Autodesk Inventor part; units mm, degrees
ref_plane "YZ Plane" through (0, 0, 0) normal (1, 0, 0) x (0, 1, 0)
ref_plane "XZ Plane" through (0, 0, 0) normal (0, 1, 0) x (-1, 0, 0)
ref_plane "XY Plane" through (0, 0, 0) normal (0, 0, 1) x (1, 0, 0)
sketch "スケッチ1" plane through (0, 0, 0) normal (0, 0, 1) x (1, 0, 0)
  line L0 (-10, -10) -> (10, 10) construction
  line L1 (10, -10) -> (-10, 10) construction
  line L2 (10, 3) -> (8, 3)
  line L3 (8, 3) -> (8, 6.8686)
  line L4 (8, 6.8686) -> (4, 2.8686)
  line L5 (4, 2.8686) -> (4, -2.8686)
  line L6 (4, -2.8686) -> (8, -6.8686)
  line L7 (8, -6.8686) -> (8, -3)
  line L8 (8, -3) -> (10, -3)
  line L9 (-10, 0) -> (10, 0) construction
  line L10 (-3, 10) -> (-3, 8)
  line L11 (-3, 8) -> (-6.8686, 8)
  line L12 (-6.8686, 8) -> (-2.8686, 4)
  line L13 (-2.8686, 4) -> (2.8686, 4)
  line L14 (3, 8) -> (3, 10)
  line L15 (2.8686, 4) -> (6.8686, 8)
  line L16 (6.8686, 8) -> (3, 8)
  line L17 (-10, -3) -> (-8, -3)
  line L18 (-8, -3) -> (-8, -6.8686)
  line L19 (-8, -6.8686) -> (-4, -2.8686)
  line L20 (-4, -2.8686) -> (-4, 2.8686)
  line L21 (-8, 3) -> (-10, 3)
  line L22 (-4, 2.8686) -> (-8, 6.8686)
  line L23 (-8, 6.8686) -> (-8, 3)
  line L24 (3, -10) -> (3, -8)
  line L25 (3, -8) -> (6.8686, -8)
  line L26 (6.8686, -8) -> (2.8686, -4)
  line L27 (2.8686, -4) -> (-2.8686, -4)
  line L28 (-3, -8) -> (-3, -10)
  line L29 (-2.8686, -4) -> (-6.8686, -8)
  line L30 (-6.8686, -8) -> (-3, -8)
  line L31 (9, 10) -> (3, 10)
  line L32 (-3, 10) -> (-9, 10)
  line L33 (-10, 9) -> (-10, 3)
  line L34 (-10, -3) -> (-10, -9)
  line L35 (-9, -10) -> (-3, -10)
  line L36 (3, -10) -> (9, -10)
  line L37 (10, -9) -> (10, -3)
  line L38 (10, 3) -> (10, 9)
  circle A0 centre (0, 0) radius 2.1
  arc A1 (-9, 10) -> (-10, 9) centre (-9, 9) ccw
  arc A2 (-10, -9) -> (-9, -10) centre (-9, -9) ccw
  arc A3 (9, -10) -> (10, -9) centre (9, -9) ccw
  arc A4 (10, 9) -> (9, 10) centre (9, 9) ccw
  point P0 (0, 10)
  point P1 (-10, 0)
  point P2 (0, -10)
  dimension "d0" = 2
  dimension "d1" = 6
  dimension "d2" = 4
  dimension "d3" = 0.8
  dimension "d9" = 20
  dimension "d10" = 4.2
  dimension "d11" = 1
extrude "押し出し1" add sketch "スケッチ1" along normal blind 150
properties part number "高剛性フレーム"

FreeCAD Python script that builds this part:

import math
import FreeCAD as App
import Part
import Sketcher
from FreeCAD import Vector

doc = App.newDocument("Part")
body = doc.addObject("PartDesign::Body", "Body")

sketch1 = body.newObject("Sketcher::SketchObject", "Sketch")
sketch1.AttachmentSupport = (doc.getObject("XY_Plane"), [""])
sketch1.MapMode = "FlatFace"
sketch1.addGeometry(Part.LineSegment(Vector(8, 3, 0), Vector(10, 3, 0)), False)
sketch1.addGeometry(Part.LineSegment(Vector(10, 3, 0), Vector(10, 9, 0)), False)
sketch1.addGeometry(Part.ArcOfCircle(Part.Circle(Vector(9, 9, 0), Vector(0, 0, 1), 1), math.radians(0), math.radians(90)), False)
sketch1.addGeometry(Part.LineSegment(Vector(9, 10, 0), Vector(3, 10, 0)), False)
sketch1.addGeometry(Part.LineSegment(Vector(3, 10, 0), Vector(3, 8, 0)), False)
sketch1.addGeometry(Part.LineSegment(Vector(3, 8, 0), Vector(6.8686, 8, 0)), False)
sketch1.addGeometry(Part.LineSegment(Vector(6.8686, 8, 0), Vector(2.8686, 4, 0)), False)
sketch1.addGeometry(Part.LineSegment(Vector(2.8686, 4, 0), Vector(-2.8686, 4, 0)), False)
sketch1.addGeometry(Part.LineSegment(Vector(-2.8686, 4, 0), Vector(-6.8686, 8, 0)), False)
sketch1.addGeometry(Part.LineSegment(Vector(-6.8686, 8, 0), Vector(-3, 8, 0)), False)
sketch1.addGeometry(Part.LineSegment(Vector(-3, 8, 0), Vector(-3, 10, 0)), False)
sketch1.addGeometry(Part.LineSegment(Vector(-3, 10, 0), Vector(-9, 10, 0)), False)
sketch1.addGeometry(Part.ArcOfCircle(Part.Circle(Vector(-9, 9, 0), Vector(0, 0, 1), 1), math.radians(90), math.radians(180)), False)
sketch1.addGeometry(Part.LineSegment(Vector(-10, 9, 0), Vector(-10, 3, 0)), False)
sketch1.addGeometry(Part.LineSegment(Vector(-10, 3, 0), Vector(-8, 3, 0)), False)
sketch1.addGeometry(Part.LineSegment(Vector(-8, 3, 0), Vector(-8, 6.8686, 0)), False)
sketch1.addGeometry(Part.LineSegment(Vector(-8, 6.8686, 0), Vector(-4, 2.8686, 0)), False)
sketch1.addGeometry(Part.LineSegment(Vector(-4, 2.8686, 0), Vector(-4, -2.8686, 0)), False)
sketch1.addGeometry(Part.LineSegment(Vector(-4, -2.8686, 0), Vector(-8, -6.8686, 0)), False)
sketch1.addGeometry(Part.LineSegment(Vector(-8, -6.8686, 0), Vector(-8, -3, 0)), False)
sketch1.addGeometry(Part.LineSegment(Vector(-8, -3, 0), Vector(-10, -3, 0)), False)
sketch1.addGeometry(Part.LineSegment(Vector(-10, -3, 0), Vector(-10, -9, 0)), False)
sketch1.addGeometry(Part.ArcOfCircle(Part.Circle(Vector(-9, -9, 0), Vector(0, 0, 1), 1), math.radians(180), math.radians(270)), False)
sketch1.addGeometry(Part.LineSegment(Vector(-9, -10, 0), Vector(-3, -10, 0)), False)
sketch1.addGeometry(Part.LineSegment(Vector(-3, -10, 0), Vector(-3, -8, 0)), False)
sketch1.addGeometry(Part.LineSegment(Vector(-3, -8, 0), Vector(-6.8686, -8, 0)), False)
sketch1.addGeometry(Part.LineSegment(Vector(-6.8686, -8, 0), Vector(-2.8686, -4, 0)), False)
sketch1.addGeometry(Part.LineSegment(Vector(-2.8686, -4, 0), Vector(2.8686, -4, 0)), False)
sketch1.addGeometry(Part.LineSegment(Vector(2.8686, -4, 0), Vector(6.8686, -8, 0)), False)
sketch1.addGeometry(Part.LineSegment(Vector(6.8686, -8, 0), Vector(3, -8, 0)), False)
sketch1.addGeometry(Part.LineSegment(Vector(3, -8, 0), Vector(3, -10, 0)), False)
sketch1.addGeometry(Part.LineSegment(Vector(3, -10, 0), Vector(9, -10, 0)), False)
sketch1.addGeometry(Part.ArcOfCircle(Part.Circle(Vector(9, -9, 0), Vector(0, 0, 1), 1), math.radians(-90), math.radians(0)), False)
sketch1.addGeometry(Part.LineSegment(Vector(10, -9, 0), Vector(10, -3, 0)), False)
sketch1.addGeometry(Part.LineSegment(Vector(10, -3, 0), Vector(8, -3, 0)), False)
sketch1.addGeometry(Part.LineSegment(Vector(8, -3, 0), Vector(8, -6.8686, 0)), False)
sketch1.addGeometry(Part.LineSegment(Vector(8, -6.8686, 0), Vector(4, -2.8686, 0)), False)
sketch1.addGeometry(Part.LineSegment(Vector(4, -2.8686, 0), Vector(4, 2.8686, 0)), False)
sketch1.addGeometry(Part.LineSegment(Vector(4, 2.8686, 0), Vector(8, 6.8686, 0)), False)
sketch1.addGeometry(Part.LineSegment(Vector(8, 6.8686, 0), Vector(8, 3, 0)), False)
sketch1.addGeometry(Part.Circle(Vector(0, 0, 0), Vector(0, 0, 1), 2.1), False)
sketch1.addConstraint(Sketcher.Constraint("Coincident", 0, 2, 1, 1))
sketch1.addConstraint(Sketcher.Constraint("Tangent", 1, 2, 2, 1))
sketch1.addConstraint(Sketcher.Constraint("Tangent", 2, 2, 3, 1))
sketch1.addConstraint(Sketcher.Constraint("Coincident", 3, 2, 4, 1))
sketch1.addConstraint(Sketcher.Constraint("Coincident", 4, 2, 5, 1))
sketch1.addConstraint(Sketcher.Constraint("Coincident", 5, 2, 6, 1))
sketch1.addConstraint(Sketcher.Constraint("Coincident", 6, 2, 7, 1))
sketch1.addConstraint(Sketcher.Constraint("Coincident", 7, 2, 8, 1))
sketch1.addConstraint(Sketcher.Constraint("Coincident", 8, 2, 9, 1))
sketch1.addConstraint(Sketcher.Constraint("Coincident", 9, 2, 10, 1))
sketch1.addConstraint(Sketcher.Constraint("Coincident", 10, 2, 11, 1))
sketch1.addConstraint(Sketcher.Constraint("Tangent", 11, 2, 12, 1))
sketch1.addConstraint(Sketcher.Constraint("Tangent", 12, 2, 13, 1))
sketch1.addConstraint(Sketcher.Constraint("Coincident", 13, 2, 14, 1))
sketch1.addConstraint(Sketcher.Constraint("Coincident", 14, 2, 15, 1))
sketch1.addConstraint(Sketcher.Constraint("Coincident", 15, 2, 16, 1))
sketch1.addConstraint(Sketcher.Constraint("Coincident", 16, 2, 17, 1))
sketch1.addConstraint(Sketcher.Constraint("Coincident", 17, 2, 18, 1))
sketch1.addConstraint(Sketcher.Constraint("Coincident", 18, 2, 19, 1))
sketch1.addConstraint(Sketcher.Constraint("Coincident", 19, 2, 20, 1))
sketch1.addConstraint(Sketcher.Constraint("Coincident", 20, 2, 21, 1))
sketch1.addConstraint(Sketcher.Constraint("Tangent", 21, 2, 22, 1))
sketch1.addConstraint(Sketcher.Constraint("Tangent", 22, 2, 23, 1))
sketch1.addConstraint(Sketcher.Constraint("Coincident", 23, 2, 24, 1))
sketch1.addConstraint(Sketcher.Constraint("Coincident", 24, 2, 25, 1))
sketch1.addConstraint(Sketcher.Constraint("Coincident", 25, 2, 26, 1))
sketch1.addConstraint(Sketcher.Constraint("Coincident", 26, 2, 27, 1))
sketch1.addConstraint(Sketcher.Constraint("Coincident", 27, 2, 28, 1))
sketch1.addConstraint(Sketcher.Constraint("Coincident", 28, 2, 29, 1))
sketch1.addConstraint(Sketcher.Constraint("Coincident", 29, 2, 30, 1))
sketch1.addConstraint(Sketcher.Constraint("Coincident", 30, 2, 31, 1))
sketch1.addConstraint(Sketcher.Constraint("Tangent", 31, 2, 32, 1))
sketch1.addConstraint(Sketcher.Constraint("Tangent", 32, 2, 33, 1))
sketch1.addConstraint(Sketcher.Constraint("Coincident", 33, 2, 34, 1))
sketch1.addConstraint(Sketcher.Constraint("Coincident", 34, 2, 35, 1))
sketch1.addConstraint(Sketcher.Constraint("Coincident", 35, 2, 36, 1))
sketch1.addConstraint(Sketcher.Constraint("Coincident", 36, 2, 37, 1))
sketch1.addConstraint(Sketcher.Constraint("Coincident", 37, 2, 38, 1))
sketch1.addConstraint(Sketcher.Constraint("Coincident", 38, 2, 39, 1))
sketch1.addConstraint(Sketcher.Constraint("Coincident", 39, 2, 0, 1))
sketch1.addConstraint(Sketcher.Constraint("Horizontal", 0))
sketch1.addConstraint(Sketcher.Constraint("Vertical", 1))
sketch1.addConstraint(Sketcher.Constraint("Horizontal", 3))
sketch1.addConstraint(Sketcher.Constraint("Vertical", 4))
sketch1.addConstraint(Sketcher.Constraint("Horizontal", 5))
sketch1.addConstraint(Sketcher.Constraint("Horizontal", 7))
sketch1.addConstraint(Sketcher.Constraint("Horizontal", 9))
sketch1.addConstraint(Sketcher.Constraint("Vertical", 10))
sketch1.addConstraint(Sketcher.Constraint("Horizontal", 11))
sketch1.addConstraint(Sketcher.Constraint("Vertical", 13))
sketch1.addConstraint(Sketcher.Constraint("Horizontal", 14))
sketch1.addConstraint(Sketcher.Constraint("Vertical", 15))
sketch1.addConstraint(Sketcher.Constraint("Vertical", 17))
sketch1.addConstraint(Sketcher.Constraint("Vertical", 19))
sketch1.addConstraint(Sketcher.Constraint("Horizontal", 20))
sketch1.addConstraint(Sketcher.Constraint("Vertical", 21))
sketch1.addConstraint(Sketcher.Constraint("Horizontal", 23))
sketch1.addConstraint(Sketcher.Constraint("Vertical", 24))
sketch1.addConstraint(Sketcher.Constraint("Horizontal", 25))
sketch1.addConstraint(Sketcher.Constraint("Horizontal", 27))
sketch1.addConstraint(Sketcher.Constraint("Horizontal", 29))
sketch1.addConstraint(Sketcher.Constraint("Vertical", 30))
sketch1.addConstraint(Sketcher.Constraint("Horizontal", 31))
sketch1.addConstraint(Sketcher.Constraint("Vertical", 33))
sketch1.addConstraint(Sketcher.Constraint("Horizontal", 34))
sketch1.addConstraint(Sketcher.Constraint("Vertical", 35))
sketch1.addConstraint(Sketcher.Constraint("Vertical", 37))
sketch1.addConstraint(Sketcher.Constraint("Vertical", 39))
sketch1.addConstraint(Sketcher.Constraint("Coincident", 40, 3, -1, 1))
sketch1.addConstraint(Sketcher.Constraint("Equal", 2, 12))
sketch1.addConstraint(Sketcher.Constraint("Equal", 12, 22))
sketch1.addConstraint(Sketcher.Constraint("Equal", 22, 32))
sketch1.addConstraint(Sketcher.Constraint("Symmetric", 2, 3, 22, 3, -1, 1))
sketch1.addConstraint(Sketcher.Constraint("Symmetric", 12, 3, 32, 3, -1, 1))
sketch1.addConstraint(Sketcher.Constraint("Symmetric", 4, 2, 24, 2, -1, 1))
sketch1.addConstraint(Sketcher.Constraint("Symmetric", 6, 2, 26, 2, -1, 1))
sketch1.addConstraint(Sketcher.Constraint("Symmetric", 8, 2, 28, 2, -1, 1))
sketch1.addConstraint(Sketcher.Constraint("Symmetric", 14, 2, 34, 2, -1, 1))
sketch1.addConstraint(Sketcher.Constraint("Symmetric", 16, 2, 36, 2, -1, 1))
sketch1.addConstraint(Sketcher.Constraint("Symmetric", 18, 2, 38, 2, -1, 1))
sketch1.addConstraint(Sketcher.Constraint("Symmetric", 2, 3, 12, 3, -2))
sketch1.addConstraint(Sketcher.Constraint("Symmetric", 5, 2, 8, 2, -2))
sketch1.addConstraint(Sketcher.Constraint("Symmetric", 19, 2, 34, 2, -2))
sketch1.addConstraint(Sketcher.Constraint("Perpendicular", 6, 8))
sketch1.addConstraint(Sketcher.Constraint("Parallel", 8, 16))
sketch1.addConstraint(Sketcher.Constraint("Perpendicular", 16, 18))
sketch1.addConstraint(Sketcher.Constraint("Parallel", 18, 26))
sketch1.addConstraint(Sketcher.Constraint("Perpendicular", 26, 28))
sketch1.addConstraint(Sketcher.Constraint("Parallel", 28, 36))
sketch1.addConstraint(Sketcher.Constraint("Perpendicular", 36, 38))
sketch1.addConstraint(Sketcher.Constraint("Horizontal", 0, 2, 13, 2))
sketch1.addConstraint(Sketcher.Constraint("Horizontal", 18, 2, 35, 2))
sketch1.addConstraint(Sketcher.Constraint("Horizontal", 17, 2, 36, 2))
sketch1.addConstraint(Sketcher.Constraint("Vertical", 10, 2, 23, 2))
sketch1.addConstraint(Sketcher.Constraint("Vertical", 4, 2, 29, 2))
sketch1.addConstraint(Sketcher.Constraint("Equal", 31, 1))
sketch1.addConstraint(Sketcher.Constraint("Equal", 34, 4))
sketch1.addConstraint(Sketcher.Constraint("Equal", 29, 15))
sketch1.addConstraint(Sketcher.Constraint("Equal", 27, 17))
sketch1.addConstraint(Sketcher.Constraint("Equal", 8, 16))
sketch1.addConstraint(Sketcher.Constraint("Radius", 2, 1.0))
sketch1.addConstraint(Sketcher.Constraint("Diameter", 40, 4.2))
sketch1.addConstraint(Sketcher.Constraint("DistanceX", 0, 1, 0, 2, 2.0))
sketch1.addConstraint(Sketcher.Constraint("DistanceX", 3, 2, 3, 1, 6.0))
sketch1.addConstraint(Sketcher.Constraint("DistanceY", -1, 1, 6, 2, 4.0))
sketch1.addConstraint(Sketcher.Constraint("DistanceY", 6, 2, 4, 2, 4.0))
sketch1.addConstraint(Sketcher.Constraint("DistanceX", 5, 1, 5, 2, 3.8686))
pad1 = body.newObject("PartDesign::Pad", "Pad")
pad1.Profile = sketch1
pad1.Length = 150

doc.recompute()
